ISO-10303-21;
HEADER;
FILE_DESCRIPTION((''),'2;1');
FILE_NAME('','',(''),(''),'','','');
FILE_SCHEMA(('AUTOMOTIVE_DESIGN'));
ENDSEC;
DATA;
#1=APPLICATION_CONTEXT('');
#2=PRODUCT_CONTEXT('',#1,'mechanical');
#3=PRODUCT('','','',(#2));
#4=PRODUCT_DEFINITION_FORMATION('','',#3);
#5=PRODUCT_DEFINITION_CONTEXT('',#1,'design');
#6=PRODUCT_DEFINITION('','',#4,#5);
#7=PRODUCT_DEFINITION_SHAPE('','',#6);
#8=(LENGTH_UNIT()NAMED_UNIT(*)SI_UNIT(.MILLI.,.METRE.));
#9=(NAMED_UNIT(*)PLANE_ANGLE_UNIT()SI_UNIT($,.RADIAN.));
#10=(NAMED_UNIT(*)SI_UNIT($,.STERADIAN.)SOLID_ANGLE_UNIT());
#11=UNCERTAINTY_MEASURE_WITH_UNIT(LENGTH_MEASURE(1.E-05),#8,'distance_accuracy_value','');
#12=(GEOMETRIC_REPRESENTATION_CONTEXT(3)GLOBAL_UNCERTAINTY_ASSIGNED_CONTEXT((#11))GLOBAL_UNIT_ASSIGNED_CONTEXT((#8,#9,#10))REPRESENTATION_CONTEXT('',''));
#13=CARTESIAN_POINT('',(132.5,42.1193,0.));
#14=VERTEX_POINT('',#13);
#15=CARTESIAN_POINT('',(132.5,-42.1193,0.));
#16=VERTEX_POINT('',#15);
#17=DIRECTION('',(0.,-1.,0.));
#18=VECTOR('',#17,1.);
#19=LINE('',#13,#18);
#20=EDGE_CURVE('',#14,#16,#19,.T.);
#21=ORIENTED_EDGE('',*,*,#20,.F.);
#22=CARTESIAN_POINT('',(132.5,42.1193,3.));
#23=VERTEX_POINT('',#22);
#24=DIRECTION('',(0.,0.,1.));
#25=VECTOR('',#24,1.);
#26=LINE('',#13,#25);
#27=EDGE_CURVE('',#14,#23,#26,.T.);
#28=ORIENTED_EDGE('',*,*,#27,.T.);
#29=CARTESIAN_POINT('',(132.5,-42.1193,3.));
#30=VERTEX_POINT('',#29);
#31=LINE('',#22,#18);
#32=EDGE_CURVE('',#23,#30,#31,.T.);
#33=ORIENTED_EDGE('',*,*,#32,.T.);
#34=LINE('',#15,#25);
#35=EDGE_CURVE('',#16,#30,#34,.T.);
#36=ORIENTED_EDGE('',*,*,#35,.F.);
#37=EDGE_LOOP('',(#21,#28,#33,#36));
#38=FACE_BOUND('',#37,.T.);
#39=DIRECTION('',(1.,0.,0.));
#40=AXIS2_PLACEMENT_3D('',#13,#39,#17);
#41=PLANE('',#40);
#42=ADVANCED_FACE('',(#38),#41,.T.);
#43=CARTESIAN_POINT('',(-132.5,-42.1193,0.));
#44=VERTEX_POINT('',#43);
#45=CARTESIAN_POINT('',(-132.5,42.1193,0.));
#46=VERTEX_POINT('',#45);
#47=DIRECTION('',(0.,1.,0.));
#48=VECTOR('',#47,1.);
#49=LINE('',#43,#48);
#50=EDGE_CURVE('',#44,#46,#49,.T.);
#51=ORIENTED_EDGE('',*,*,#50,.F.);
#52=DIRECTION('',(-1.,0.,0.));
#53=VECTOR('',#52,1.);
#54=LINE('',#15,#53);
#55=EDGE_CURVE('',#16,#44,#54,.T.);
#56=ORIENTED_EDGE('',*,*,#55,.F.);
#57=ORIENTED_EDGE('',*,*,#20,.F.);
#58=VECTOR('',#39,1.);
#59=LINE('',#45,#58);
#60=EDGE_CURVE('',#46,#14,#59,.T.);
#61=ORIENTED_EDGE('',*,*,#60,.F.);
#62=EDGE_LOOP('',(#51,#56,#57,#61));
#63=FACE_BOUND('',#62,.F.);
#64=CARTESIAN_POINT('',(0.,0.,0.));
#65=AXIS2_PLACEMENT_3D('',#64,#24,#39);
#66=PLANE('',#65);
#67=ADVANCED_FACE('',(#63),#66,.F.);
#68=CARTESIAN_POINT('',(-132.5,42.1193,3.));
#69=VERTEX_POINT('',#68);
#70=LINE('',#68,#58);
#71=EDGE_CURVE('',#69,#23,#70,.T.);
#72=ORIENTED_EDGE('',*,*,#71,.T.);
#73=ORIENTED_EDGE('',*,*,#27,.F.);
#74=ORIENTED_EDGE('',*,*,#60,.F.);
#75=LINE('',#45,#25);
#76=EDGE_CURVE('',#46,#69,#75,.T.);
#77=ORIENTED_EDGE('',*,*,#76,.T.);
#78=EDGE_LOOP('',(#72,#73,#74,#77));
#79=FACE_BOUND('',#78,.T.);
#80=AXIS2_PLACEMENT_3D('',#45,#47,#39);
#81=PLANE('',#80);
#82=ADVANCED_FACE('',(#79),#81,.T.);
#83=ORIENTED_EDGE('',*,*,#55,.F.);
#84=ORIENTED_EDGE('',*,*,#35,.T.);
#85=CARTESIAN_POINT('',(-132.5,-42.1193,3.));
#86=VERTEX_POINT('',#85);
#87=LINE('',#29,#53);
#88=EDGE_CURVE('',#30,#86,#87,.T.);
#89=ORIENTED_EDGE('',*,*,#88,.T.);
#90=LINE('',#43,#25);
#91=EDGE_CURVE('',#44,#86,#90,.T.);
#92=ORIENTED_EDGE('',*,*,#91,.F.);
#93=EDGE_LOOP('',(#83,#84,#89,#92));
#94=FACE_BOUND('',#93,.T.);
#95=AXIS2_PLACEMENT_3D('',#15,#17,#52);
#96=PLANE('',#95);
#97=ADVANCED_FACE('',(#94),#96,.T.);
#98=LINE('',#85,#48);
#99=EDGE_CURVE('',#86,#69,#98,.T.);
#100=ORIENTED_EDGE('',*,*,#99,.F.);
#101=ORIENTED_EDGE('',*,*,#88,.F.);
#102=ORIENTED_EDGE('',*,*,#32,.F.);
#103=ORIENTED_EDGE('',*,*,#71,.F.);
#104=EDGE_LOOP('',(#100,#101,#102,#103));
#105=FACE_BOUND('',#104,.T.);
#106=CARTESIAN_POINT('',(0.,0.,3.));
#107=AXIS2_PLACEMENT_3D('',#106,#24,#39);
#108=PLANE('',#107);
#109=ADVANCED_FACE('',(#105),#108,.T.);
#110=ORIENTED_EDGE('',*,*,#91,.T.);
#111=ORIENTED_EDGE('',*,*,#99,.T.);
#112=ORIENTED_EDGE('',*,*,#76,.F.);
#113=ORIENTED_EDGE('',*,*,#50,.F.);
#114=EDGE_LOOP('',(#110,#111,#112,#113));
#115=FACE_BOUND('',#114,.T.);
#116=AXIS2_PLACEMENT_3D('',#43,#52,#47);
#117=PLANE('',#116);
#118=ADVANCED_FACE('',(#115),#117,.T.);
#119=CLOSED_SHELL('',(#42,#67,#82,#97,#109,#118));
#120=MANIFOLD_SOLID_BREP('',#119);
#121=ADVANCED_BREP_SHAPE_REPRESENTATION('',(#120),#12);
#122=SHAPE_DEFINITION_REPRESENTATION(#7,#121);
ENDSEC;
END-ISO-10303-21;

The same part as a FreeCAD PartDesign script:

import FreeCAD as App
import Part
import Sketcher

doc = App.newDocument("Part")
body = doc.addObject("PartDesign::Body", "Body")

# Sketch on XY plane
sketch1 = body.newObject("Sketcher::SketchObject", "Sketch")
sketch1.AttachmentSupport = (doc.getObject("XY_Plane"), [""])
sketch1.MapMode = "FlatFace"
sketch1.addGeometry([
    Part.LineSegment(App.Vector(-132, -42, 0), App.Vector(132, -42, 0)),
    Part.LineSegment(App.Vector(132, -42, 0), App.Vector(132, 42, 0)),
    Part.LineSegment(App.Vector(132, 42, 0), App.Vector(-132, 42, 0)),
    Part.LineSegment(App.Vector(-132, 42, 0), App.Vector(-132, -42, 0)),
], False)
sketch1.addConstraint([
    Sketcher.Constraint("Coincident", 0, 2, 1, 1),
    Sketcher.Constraint("Coincident", 1, 2, 2, 1),
    Sketcher.Constraint("Coincident", 2, 2, 3, 1),
    Sketcher.Constraint("Coincident", 3, 2, 0, 1),
    Sketcher.Constraint("Horizontal", 0),
    Sketcher.Constraint("Vertical", 1),
    Sketcher.Constraint("Horizontal", 2),
    Sketcher.Constraint("Vertical", 3),
    Sketcher.Constraint("Symmetric", 0, 2, 2, 2, -1, 1),
    Sketcher.Constraint("DistanceX", 0, 1, 0, 2, 265.0),
    Sketcher.Constraint("DistanceY", 1, 1, 1, 2, 84.2386),
])
pad1 = body.newObject("PartDesign::Pad", "Pad")
pad1.Profile = sketch1
pad1.Length = 3

doc.recompute()
